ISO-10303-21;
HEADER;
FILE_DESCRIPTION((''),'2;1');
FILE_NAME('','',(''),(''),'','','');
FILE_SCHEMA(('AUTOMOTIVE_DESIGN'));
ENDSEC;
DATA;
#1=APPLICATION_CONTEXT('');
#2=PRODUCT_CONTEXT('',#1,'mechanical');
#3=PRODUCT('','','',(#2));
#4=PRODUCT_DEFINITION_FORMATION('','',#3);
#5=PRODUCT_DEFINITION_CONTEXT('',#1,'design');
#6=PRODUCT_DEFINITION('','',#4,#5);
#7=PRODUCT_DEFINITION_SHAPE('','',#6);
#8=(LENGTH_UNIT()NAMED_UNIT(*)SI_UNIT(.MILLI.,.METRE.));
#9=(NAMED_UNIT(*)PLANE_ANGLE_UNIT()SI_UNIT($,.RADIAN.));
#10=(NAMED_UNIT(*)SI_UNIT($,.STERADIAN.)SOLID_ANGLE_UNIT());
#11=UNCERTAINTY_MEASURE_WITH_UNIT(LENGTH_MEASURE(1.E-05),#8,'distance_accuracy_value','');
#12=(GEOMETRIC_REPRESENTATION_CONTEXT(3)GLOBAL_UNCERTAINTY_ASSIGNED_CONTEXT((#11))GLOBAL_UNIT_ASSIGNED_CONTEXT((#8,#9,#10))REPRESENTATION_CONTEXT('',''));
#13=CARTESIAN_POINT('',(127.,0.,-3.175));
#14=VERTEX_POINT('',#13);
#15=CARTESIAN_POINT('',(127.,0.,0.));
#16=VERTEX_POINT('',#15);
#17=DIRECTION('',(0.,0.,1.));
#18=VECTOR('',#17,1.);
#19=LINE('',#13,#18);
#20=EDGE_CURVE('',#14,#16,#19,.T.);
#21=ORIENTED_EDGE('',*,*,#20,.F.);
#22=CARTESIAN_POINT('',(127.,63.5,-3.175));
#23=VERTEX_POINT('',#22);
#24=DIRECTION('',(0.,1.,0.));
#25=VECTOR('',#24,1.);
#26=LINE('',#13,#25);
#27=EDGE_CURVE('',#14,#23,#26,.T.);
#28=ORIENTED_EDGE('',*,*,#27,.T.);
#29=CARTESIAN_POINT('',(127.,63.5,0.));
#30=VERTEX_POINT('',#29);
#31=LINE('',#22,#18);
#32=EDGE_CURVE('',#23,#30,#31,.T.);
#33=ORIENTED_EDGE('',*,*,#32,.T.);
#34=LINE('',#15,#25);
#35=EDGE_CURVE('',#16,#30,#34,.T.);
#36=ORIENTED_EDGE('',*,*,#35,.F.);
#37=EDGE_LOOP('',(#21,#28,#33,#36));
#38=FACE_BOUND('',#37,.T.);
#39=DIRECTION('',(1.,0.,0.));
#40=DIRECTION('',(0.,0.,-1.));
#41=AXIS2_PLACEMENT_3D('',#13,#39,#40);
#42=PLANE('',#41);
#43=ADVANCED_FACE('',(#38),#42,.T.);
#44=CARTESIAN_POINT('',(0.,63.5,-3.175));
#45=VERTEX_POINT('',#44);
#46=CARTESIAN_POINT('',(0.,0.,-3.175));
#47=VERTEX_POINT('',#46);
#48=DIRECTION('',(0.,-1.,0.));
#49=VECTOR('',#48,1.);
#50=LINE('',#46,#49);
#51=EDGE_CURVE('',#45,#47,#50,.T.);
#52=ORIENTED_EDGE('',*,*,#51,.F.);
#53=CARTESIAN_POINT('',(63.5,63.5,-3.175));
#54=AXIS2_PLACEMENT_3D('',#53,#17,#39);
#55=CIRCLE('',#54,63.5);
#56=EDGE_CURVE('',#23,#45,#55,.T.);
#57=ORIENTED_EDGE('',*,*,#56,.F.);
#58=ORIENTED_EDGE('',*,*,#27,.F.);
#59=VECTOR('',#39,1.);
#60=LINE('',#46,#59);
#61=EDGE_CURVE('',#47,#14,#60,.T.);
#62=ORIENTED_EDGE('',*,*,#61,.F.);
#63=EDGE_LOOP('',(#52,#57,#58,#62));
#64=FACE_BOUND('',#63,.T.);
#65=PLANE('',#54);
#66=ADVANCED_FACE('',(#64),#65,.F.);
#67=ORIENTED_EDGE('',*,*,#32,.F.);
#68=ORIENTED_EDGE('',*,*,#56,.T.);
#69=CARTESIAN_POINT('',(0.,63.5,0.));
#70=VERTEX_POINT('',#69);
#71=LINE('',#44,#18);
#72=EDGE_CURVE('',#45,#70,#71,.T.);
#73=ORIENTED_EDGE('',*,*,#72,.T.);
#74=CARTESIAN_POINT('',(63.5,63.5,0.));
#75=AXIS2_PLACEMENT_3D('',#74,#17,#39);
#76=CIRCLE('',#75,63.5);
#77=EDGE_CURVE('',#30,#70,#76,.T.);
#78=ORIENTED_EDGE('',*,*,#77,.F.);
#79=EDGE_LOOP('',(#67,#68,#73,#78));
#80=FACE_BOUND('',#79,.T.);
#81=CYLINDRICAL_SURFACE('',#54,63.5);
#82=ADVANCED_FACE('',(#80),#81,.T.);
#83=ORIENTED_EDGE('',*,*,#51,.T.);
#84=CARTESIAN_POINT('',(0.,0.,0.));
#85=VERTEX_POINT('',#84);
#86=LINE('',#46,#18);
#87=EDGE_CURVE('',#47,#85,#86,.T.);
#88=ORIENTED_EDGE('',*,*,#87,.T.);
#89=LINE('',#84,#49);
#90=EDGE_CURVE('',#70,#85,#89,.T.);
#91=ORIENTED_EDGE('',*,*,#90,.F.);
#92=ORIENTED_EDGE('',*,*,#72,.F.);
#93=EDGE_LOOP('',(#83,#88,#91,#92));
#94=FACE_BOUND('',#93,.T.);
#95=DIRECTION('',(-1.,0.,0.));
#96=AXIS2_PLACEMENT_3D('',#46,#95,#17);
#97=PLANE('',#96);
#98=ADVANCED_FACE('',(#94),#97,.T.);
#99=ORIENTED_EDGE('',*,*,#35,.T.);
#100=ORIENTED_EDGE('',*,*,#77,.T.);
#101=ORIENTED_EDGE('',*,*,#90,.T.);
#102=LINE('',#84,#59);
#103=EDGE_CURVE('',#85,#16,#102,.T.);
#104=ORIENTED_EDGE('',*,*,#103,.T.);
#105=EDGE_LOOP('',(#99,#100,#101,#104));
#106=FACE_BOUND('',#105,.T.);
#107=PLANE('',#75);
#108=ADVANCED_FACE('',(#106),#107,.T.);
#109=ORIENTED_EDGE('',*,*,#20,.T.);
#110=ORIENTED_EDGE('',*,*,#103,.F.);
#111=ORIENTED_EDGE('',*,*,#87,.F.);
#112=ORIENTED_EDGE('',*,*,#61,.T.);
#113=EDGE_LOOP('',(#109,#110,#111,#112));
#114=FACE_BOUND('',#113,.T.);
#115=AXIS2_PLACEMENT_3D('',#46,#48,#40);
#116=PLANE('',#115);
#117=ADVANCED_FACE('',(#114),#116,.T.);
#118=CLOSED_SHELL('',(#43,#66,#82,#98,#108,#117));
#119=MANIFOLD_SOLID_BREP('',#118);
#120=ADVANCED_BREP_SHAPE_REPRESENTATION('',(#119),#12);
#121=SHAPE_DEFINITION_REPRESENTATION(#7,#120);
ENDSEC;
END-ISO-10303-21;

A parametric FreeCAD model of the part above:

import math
import FreeCAD as App
import Part
import Sketcher

V = App.Vector
Q = App.Units.Quantity

doc = App.newDocument("Part")
body = doc.addObject("PartDesign::Body", "Body")

# Sketch on XY plane
sketch1 = body.newObject("Sketcher::SketchObject", "Sketch")
sketch1.AttachmentSupport = (doc.getObject("XY_Plane"), [""])
sketch1.MapMode = "FlatFace"
sketch1.addGeometry([
    Part.LineSegment(V(0, 0, 0), V(127, 0, 0)),
    Part.LineSegment(V(127, 0, 0), V(127, 63.5, 0)),
    Part.ArcOfCircle(Part.Circle(V(63.5, 63.5, 0), V(0, 0, 1), 63.5), math.radians(0), math.radians(180)),
    Part.LineSegment(V(0, 63.5, 0), V(0, 0, 0)),
], False)
sketch1.addConstraint([
    Sketcher.Constraint("Coincident", 0, 2, 1, 1),
    Sketcher.Constraint("Tangent", 1, 2, 2, 1),
    Sketcher.Constraint("Tangent", 2, 2, 3, 1),
    Sketcher.Constraint("Coincident", 3, 2, 0, 1),
    Sketcher.Constraint("Horizontal", 0),
    Sketcher.Constraint("Vertical", 1),
    Sketcher.Constraint("Vertical", 3),
    Sketcher.Constraint("Coincident", 3, 2, -1, 1),
    Sketcher.Constraint("Radius", 2, Q("2.5 in")),
    Sketcher.Constraint("DistanceY", 1, 1, 1, 2, Q("2.5 in")),
])
pad1 = body.newObject("PartDesign::Pad", "Pad")
pad1.Profile = sketch1
pad1.Length = Q("0.125 in")
pad1.Reversed = True

doc.recompute()
